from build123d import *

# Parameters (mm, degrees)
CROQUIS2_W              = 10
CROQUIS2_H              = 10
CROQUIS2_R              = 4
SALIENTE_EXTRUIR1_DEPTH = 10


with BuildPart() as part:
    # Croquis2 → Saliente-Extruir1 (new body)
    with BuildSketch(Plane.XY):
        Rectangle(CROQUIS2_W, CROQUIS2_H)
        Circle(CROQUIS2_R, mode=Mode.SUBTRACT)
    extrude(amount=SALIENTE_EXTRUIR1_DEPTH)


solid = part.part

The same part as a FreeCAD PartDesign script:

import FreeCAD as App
import Part
import Sketcher

doc = App.newDocument("Part")
body = doc.addObject("PartDesign::Body", "Body")

# Sketch on XY plane
sketch1 = doc.addObject("Sketcher::SketchObject", "Sketch")
body.addObject(sketch1)
sketch1.AttachmentSupport = (doc.XY_Plane, [""])
sketch1.MapMode = "FlatFace"
sketch1.addGeometry([
    Part.LineSegment(App.Vector(-5, 5, 0), App.Vector(-5, -5, 0)),  # 0
    Part.LineSegment(App.Vector(-5, -5, 0), App.Vector(5, -5, 0)),  # 1
    Part.LineSegment(App.Vector(5, -5, 0), App.Vector(5, 5, 0)),  # 2
    Part.LineSegment(App.Vector(5, 5, 0), App.Vector(-5, 5, 0)),  # 3
    Part.Circle(App.Vector(0, 0, 0), App.Vector(0, 0, 1), 4),  # 4
], False)
sketch1.addConstraint([
    Sketcher.Constraint("Coincident", 0, 2, 1, 1),
    Sketcher.Constraint("Coincident", 1, 2, 2, 1),
    Sketcher.Constraint("Coincident", 2, 2, 3, 1),
    Sketcher.Constraint("Coincident", 3, 2, 0, 1),
    Sketcher.Constraint("Vertical", 0),
    Sketcher.Constraint("Horizontal", 1),
    Sketcher.Constraint("Vertical", 2),
    Sketcher.Constraint("Horizontal", 3),
    Sketcher.Constraint("Coincident", 4, 3, -1, 1),
    Sketcher.Constraint("Symmetric", 0, 2, 2, 2, -1, 1),
    Sketcher.Constraint("Equal", 3, 0),
    Sketcher.Constraint("Diameter", 4, 8.0),
    Sketcher.Constraint("DistanceX", 1, 1, 1, 2, 10.0),
])
pad1 = doc.addObject("PartDesign::Pad", "Pad")
body.addObject(pad1)
pad1.Profile = sketch1
pad1.Length = 10

doc.recompute()
